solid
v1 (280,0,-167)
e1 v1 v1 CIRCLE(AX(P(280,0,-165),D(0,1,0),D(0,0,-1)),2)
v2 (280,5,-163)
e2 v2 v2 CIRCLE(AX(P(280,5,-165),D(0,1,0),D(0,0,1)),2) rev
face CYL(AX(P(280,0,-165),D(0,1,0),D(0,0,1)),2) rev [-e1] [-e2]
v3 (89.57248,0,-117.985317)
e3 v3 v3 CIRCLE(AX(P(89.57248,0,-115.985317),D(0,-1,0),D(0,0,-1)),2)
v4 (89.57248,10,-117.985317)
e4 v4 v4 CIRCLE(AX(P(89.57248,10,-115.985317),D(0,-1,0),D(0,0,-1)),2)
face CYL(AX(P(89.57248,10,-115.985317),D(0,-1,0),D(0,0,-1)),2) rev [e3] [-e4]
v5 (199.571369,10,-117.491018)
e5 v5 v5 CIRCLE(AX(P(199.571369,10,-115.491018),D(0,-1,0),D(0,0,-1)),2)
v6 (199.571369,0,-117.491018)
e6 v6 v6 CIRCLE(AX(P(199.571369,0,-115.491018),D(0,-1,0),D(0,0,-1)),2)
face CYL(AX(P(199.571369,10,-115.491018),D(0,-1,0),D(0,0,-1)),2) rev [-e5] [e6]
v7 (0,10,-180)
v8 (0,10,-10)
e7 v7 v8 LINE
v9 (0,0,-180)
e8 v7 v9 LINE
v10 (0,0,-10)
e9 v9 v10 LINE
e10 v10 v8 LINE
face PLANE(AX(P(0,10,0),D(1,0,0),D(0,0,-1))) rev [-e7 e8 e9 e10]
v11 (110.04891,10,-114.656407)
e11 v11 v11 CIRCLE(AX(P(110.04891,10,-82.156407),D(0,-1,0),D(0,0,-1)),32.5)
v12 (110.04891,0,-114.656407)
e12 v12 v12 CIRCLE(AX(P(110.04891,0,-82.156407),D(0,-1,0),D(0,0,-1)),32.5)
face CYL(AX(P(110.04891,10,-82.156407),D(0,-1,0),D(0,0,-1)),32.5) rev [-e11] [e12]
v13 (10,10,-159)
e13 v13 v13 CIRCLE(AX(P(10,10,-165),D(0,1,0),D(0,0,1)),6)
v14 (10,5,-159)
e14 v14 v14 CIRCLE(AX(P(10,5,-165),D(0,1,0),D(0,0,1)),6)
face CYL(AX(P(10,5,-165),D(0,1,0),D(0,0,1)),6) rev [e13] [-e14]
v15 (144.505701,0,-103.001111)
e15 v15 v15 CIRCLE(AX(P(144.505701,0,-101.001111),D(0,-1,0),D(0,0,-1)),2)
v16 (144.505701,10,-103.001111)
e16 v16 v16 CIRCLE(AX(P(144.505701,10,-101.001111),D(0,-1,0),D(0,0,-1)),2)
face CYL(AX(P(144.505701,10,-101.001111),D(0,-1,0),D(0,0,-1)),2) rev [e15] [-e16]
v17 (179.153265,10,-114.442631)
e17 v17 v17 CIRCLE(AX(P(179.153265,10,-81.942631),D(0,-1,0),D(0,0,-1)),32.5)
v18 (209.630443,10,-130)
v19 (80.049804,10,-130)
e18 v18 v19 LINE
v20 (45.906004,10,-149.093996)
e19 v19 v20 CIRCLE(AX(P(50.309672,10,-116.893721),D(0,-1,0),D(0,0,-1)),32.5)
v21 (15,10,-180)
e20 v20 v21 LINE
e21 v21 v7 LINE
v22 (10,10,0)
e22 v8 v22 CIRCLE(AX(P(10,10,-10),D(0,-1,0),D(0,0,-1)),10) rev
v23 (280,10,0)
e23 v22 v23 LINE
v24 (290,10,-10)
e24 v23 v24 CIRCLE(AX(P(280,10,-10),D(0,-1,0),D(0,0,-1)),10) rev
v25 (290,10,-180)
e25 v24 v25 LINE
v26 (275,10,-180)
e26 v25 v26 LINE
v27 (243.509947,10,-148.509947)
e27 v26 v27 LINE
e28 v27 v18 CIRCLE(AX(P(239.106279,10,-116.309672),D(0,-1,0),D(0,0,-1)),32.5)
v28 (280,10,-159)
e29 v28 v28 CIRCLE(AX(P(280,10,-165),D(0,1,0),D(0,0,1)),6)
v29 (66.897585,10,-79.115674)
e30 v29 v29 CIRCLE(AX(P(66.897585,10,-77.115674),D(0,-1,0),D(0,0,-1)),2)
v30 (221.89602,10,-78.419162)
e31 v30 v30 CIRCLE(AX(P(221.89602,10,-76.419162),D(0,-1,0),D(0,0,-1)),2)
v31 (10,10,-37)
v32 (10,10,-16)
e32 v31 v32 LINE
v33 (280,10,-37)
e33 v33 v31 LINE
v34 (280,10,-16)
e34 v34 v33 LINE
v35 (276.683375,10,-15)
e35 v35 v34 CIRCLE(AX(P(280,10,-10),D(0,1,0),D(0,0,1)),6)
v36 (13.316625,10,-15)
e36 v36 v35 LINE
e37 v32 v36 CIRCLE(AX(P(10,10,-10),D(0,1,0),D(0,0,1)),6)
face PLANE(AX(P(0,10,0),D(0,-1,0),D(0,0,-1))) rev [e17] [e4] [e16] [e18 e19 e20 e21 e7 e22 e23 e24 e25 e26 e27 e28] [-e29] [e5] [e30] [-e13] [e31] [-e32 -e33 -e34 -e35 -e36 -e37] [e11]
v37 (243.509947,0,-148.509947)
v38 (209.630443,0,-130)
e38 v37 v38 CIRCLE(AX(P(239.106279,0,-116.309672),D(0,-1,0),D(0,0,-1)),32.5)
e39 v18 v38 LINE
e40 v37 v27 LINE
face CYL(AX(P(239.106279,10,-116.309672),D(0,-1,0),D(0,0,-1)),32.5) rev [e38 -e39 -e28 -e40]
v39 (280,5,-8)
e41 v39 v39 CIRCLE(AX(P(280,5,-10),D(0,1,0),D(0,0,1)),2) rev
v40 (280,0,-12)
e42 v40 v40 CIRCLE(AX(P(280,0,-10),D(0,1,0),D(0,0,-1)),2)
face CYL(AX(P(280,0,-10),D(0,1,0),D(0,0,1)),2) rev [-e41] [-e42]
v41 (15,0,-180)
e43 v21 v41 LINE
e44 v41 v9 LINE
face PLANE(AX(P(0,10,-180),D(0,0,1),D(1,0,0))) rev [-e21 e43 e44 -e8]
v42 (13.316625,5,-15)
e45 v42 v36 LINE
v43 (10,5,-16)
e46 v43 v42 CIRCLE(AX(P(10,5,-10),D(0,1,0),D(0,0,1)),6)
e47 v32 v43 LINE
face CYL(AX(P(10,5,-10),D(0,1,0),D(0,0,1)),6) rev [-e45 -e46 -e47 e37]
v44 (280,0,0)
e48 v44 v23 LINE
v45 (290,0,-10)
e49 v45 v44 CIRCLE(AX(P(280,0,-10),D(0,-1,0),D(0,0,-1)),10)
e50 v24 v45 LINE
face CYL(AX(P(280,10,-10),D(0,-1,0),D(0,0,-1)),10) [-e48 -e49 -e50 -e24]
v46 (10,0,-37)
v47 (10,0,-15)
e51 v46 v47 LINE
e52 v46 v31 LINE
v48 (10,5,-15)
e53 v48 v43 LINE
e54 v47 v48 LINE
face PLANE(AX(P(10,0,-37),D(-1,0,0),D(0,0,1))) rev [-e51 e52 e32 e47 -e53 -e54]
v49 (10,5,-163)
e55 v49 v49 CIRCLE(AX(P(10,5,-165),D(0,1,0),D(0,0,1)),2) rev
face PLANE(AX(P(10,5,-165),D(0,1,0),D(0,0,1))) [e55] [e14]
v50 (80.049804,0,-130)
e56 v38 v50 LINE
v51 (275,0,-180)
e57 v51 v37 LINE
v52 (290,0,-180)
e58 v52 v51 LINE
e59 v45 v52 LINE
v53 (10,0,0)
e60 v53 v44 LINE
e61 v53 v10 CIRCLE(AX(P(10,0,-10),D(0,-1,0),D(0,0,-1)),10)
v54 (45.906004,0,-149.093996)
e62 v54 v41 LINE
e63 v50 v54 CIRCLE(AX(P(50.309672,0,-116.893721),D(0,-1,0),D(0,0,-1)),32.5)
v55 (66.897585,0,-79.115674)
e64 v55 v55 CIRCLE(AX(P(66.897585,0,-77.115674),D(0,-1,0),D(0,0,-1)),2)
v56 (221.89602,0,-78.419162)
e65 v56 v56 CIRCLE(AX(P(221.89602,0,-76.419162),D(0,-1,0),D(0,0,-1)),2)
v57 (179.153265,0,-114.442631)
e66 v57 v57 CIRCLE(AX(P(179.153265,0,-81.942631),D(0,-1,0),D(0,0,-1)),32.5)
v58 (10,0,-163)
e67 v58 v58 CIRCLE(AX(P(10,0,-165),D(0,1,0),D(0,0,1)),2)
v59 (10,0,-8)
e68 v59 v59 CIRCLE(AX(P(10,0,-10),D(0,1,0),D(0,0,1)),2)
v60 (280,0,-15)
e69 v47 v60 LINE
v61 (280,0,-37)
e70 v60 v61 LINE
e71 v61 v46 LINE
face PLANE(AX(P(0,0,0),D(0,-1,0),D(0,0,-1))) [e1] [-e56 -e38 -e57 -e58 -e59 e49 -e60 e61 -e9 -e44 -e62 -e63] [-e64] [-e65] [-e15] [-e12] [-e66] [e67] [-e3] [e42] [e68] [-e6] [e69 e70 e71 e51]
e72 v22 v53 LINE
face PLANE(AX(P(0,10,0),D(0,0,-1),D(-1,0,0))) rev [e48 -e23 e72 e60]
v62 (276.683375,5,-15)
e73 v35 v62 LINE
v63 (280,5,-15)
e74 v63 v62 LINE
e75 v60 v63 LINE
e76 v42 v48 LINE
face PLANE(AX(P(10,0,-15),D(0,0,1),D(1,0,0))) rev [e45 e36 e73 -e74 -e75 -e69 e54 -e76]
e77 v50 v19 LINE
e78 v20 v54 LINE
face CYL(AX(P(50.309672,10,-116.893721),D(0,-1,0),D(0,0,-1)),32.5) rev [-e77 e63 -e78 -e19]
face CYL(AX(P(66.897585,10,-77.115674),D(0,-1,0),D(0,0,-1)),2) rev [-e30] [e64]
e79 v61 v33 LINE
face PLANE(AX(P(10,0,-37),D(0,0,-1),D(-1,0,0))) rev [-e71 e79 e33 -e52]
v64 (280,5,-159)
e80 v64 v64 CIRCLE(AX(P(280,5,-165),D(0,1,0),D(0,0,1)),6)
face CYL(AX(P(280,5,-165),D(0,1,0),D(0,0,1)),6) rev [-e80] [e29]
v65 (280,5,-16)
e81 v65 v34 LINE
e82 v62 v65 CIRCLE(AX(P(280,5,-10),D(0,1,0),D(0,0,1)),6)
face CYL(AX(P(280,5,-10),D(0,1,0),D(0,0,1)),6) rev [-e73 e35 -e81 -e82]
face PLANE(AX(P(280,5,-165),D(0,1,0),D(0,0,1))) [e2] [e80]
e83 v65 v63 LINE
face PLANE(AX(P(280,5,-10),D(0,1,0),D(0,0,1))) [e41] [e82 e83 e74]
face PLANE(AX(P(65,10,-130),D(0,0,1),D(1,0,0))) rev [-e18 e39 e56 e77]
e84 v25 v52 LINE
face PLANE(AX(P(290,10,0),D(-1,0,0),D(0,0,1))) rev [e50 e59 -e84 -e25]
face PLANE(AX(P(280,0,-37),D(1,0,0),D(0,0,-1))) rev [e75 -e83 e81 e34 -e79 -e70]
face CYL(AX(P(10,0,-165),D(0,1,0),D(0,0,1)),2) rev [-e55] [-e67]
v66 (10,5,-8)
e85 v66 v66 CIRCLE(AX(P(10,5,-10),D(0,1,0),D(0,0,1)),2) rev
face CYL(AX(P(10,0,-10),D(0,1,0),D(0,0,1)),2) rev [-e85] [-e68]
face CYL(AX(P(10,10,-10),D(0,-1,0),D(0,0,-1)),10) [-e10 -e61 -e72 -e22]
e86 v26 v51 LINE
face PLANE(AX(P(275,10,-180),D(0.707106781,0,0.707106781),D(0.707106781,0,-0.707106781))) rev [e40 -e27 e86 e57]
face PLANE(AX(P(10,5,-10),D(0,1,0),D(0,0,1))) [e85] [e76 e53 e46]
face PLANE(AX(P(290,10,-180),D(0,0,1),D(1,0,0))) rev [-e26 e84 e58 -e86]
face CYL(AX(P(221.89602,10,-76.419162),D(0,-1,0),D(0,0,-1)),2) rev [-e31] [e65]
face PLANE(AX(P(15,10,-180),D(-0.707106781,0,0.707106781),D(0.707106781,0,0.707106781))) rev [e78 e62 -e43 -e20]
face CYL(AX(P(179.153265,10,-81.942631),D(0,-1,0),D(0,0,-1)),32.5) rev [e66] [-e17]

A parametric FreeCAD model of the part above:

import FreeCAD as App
import Part
import Sketcher

V = App.Vector
Q = App.Units.Quantity


def edges_at(feature, points):
    """Names of the edges that pass closest to the given points."""
    edges = feature.Shape.Edges
    near = lambda p: min(range(len(edges)), key=lambda i: edges[i].distToShape(Part.Vertex(*p))[0])
    return sorted({f"Edge{near(p) + 1}" for p in points})

doc = App.newDocument("Part")
body = doc.addObject("PartDesign::Body", "Body")

# Sketch on XZ plane
sketch1 = body.newObject("Sketcher::SketchObject", "Sketch")
sketch1.AttachmentSupport = (doc.getObject("XZ_Plane"), [""])
sketch1.MapMode = "FlatFace"
sketch1.addGeometry([
    Part.LineSegment(V(0, 0, 0), V(290, 0, 0)),  # 0
    Part.LineSegment(V(290, 0, 0), V(290, -180, 0)),  # 1
    Part.LineSegment(V(290, -180, 0), V(275, -180, 0)),  # 2
    Part.LineSegment(V(275, -180, 0), V(225, -130, 0)),  # 3
    Part.LineSegment(V(225, -130, 0), V(65, -130, 0)),  # 4
    Part.LineSegment(V(65, -130, 0), V(15, -180, 0)),  # 5
    Part.LineSegment(V(15, -180, 0), V(0, -180, 0)),  # 6
    Part.LineSegment(V(0, -180, 0), V(0, 0, 0)),  # 7
], False)
sketch1.addConstraint([
    Sketcher.Constraint("Coincident", 0, 2, 1, 1),
    Sketcher.Constraint("Coincident", 1, 2, 2, 1),
    Sketcher.Constraint("Coincident", 2, 2, 3, 1),
    Sketcher.Constraint("Coincident", 3, 2, 4, 1),
    Sketcher.Constraint("Coincident", 4, 2, 5, 1),
    Sketcher.Constraint("Coincident", 5, 2, 6, 1),
    Sketcher.Constraint("Coincident", 6, 2, 7, 1),
    Sketcher.Constraint("Coincident", 7, 2, 0, 1),
    Sketcher.Constraint("Horizontal", 0),
    Sketcher.Constraint("Vertical", 1),
    Sketcher.Constraint("Horizontal", 2),
    Sketcher.Constraint("Horizontal", 4),
    Sketcher.Constraint("Horizontal", 6),
    Sketcher.Constraint("Vertical", 7),
    Sketcher.Constraint("Coincident", 7, 2, -1, 1),
    Sketcher.Constraint("Perpendicular", 3, 5),
    Sketcher.Constraint("Horizontal", 2, 2, 5, 2),
    Sketcher.Constraint("Equal", 2, 6),
    Sketcher.Constraint("Equal", 3, 5),
    Sketcher.Constraint("DistanceX", 0, 1, 0, 2, Q("290 mm")),
    Sketcher.Constraint("DistanceX", 2, 2, 2, 1, Q("15 mm")),
    Sketcher.Constraint("DistanceX", 4, 2, 4, 1, Q("160 mm")),
    Sketcher.Constraint("DistanceY", 1, 2, 1, 1, Q("180 mm")),
])
pad1 = body.newObject("PartDesign::Pad", "Pad")
pad1.Profile = sketch1
pad1.Length = 10
pad1.Reversed = True

# Sketch on XZ plane
sketch2 = body.newObject("Sketcher::SketchObject", "Sketch001")
sketch2.AttachmentSupport = (doc.getObject("XZ_Plane"), [""])
sketch2.MapMode = "FlatFace"
sketch2.AttachmentOffset = App.Placement(V(0, 0, -10), App.Rotation())
sketch2.addGeometry([
    Part.Circle(V(10, -10, 0), V(0, 0, 1), 2),
    Part.Circle(V(280, -10, 0), V(0, 0, 1), 2),
], False)
sketch2.addConstraint([
    Sketcher.Constraint("Equal", 0, 1),
    Sketcher.Constraint("Horizontal", 0, 3, 1, 3),
    Sketcher.Constraint("Diameter", 0, Q("4 mm")),
    Sketcher.Constraint("DistanceX", -1, 1, 0, 3, Q("10 mm")),
    Sketcher.Constraint("DistanceY", 0, 3, -1, 1, Q("10 mm")),
    Sketcher.Constraint("DistanceX", -1, 1, 1, 3, Q("280 mm")),
])
pocket1 = body.newObject("PartDesign::Pocket", "Pocket")
pocket1.Profile = sketch2
pocket1.Length = 10
pocket1.Reversed = True
doc.recompute()

fillet = body.newObject("PartDesign::Fillet", "Fillet")
fillet.Base = (pocket1, edges_at(pocket1, [(290, 5, 0), (0, 5, 0)]))
fillet.Radius = 10

# Sketch on XZ plane
sketch3 = body.newObject("Sketcher::SketchObject", "Sketch002")
sketch3.AttachmentSupport = (doc.getObject("XZ_Plane"), [""])
sketch3.MapMode = "FlatFace"
sketch3.addGeometry([
    Part.Circle(V(239, -116, 0), V(0, 0, 1), 32),
    Part.Circle(V(179, -82, 0), V(0, 0, 1), 32),
    Part.Circle(V(110, -82, 0), V(0, 0, 1), 32),
    Part.Circle(V(50, -117, 0), V(0, 0, 1), 32),
], False)
sketch3.addConstraint([
    Sketcher.Constraint("Equal", 0, 1),
    Sketcher.Constraint("Equal", 1, 2),
    Sketcher.Constraint("Equal", 2, 3),
    Sketcher.Constraint("Diameter", 0, Q("65 mm")),
    Sketcher.Constraint("DistanceX", -1, 1, 0, 3, Q("239.106279 mm")),
    Sketcher.Constraint("DistanceY", 1, 3, -1, 1, Q("81.942631 mm")),
    Sketcher.Constraint("DistanceX", -1, 1, 2, 3, Q("110.04891 mm")),
    Sketcher.Constraint("DistanceY", 3, 3, -1, 1, Q("116.893721 mm")),
    Sketcher.Constraint("DistanceY", 0, 3, 1, 3, Q("34.367041 mm")),
    Sketcher.Constraint("DistanceX", 3, 3, 2, 3, Q("59.739238 mm")),
    Sketcher.Constraint("DistanceX", -1, 1, 1, 3, Q("179.153265 mm")),
    Sketcher.Constraint("DistanceY", 2, 3, -1, 1, Q("82.156407 mm")),
])
pocket2 = body.newObject("PartDesign::Pocket", "Pocket001")
pocket2.Profile = sketch3
pocket2.Length = 10

# Sketch on XZ plane
sketch4 = body.newObject("Sketcher::SketchObject", "Sketch003")
sketch4.AttachmentSupport = (doc.getObject("XZ_Plane"), [""])
sketch4.MapMode = "FlatFace"
sketch4.addGeometry([
    Part.Circle(V(144.5, -101, 0), V(0, 0, 1), 2),  # 0
    Part.Circle(V(199.6, -115.5, 0), V(0, 0, 1), 2),  # 1
    Part.Circle(V(221.9, -76.4, 0), V(0, 0, 1), 2),  # 2
    Part.Circle(V(66.9, -77.1, 0), V(0, 0, 1), 2),  # 3
    Part.Circle(V(89.6, -116, 0), V(0, 0, 1), 2),  # 4
], False)
sketch4.addConstraint([
    Sketcher.Constraint("Equal", 0, 1),
    Sketcher.Constraint("Equal", 1, 2),
    Sketcher.Constraint("Equal", 2, 3),
    Sketcher.Constraint("Equal", 3, 4),
    Sketcher.Constraint("Diameter", 0, Q("4 mm")),
    Sketcher.Constraint("DistanceX", -1, 1, 0, 3, Q("144.505701 mm")),
    Sketcher.Constraint("DistanceY", 4, 3, 1, 3, Q("0.494299 mm")),
    Sketcher.Constraint("DistanceY", 0, 3, -1, 1, Q("101.001111 mm")),
    Sketcher.Constraint("DistanceX", -1, 1, 1, 3, Q("199.571369 mm")),
    Sketcher.Constraint("DistanceX", -1, 1, 2, 3, Q("221.89602 mm")),
    Sketcher.Constraint("DistanceY", 2, 3, -1, 1, Q("76.419162 mm")),
    Sketcher.Constraint("DistanceX", -1, 1, 4, 3, Q("89.57248 mm")),
    Sketcher.Constraint("DistanceY", 1, 3, -1, 1, Q("115.491018 mm")),
    Sketcher.Constraint("DistanceX", -1, 1, 3, 3, Q("66.897585 mm")),
    Sketcher.Constraint("DistanceY", 3, 3, -1, 1, Q("77.115674 mm")),
])
pocket3 = body.newObject("PartDesign::Pocket", "Pocket002")
pocket3.Profile = sketch4
pocket3.Length = 10

# Sketch on XZ plane
sketch5 = body.newObject("Sketcher::SketchObject", "Sketch004")
sketch5.AttachmentSupport = (doc.getObject("XZ_Plane"), [""])
sketch5.MapMode = "FlatFace"
sketch5.AttachmentOffset = App.Placement(V(0, 0, -10), App.Rotation())
sketch5.addGeometry([
    Part.LineSegment(V(10, -37, 0), V(10, -15, 0)),
    Part.LineSegment(V(10, -15, 0), V(280, -15, 0)),
    Part.LineSegment(V(280, -15, 0), V(280, -37, 0)),
    Part.LineSegment(V(280, -37, 0), V(10, -37, 0)),
], False)
sketch5.addConstraint([
    Sketcher.Constraint("Coincident", 0, 2, 1, 1),
    Sketcher.Constraint("Coincident", 1, 2, 2, 1),
    Sketcher.Constraint("Coincident", 2, 2, 3, 1),
    Sketcher.Constraint("Coincident", 3, 2, 0, 1),
    Sketcher.Constraint("Vertical", 0),
    Sketcher.Constraint("Horizontal", 1),
    Sketcher.Constraint("Vertical", 2),
    Sketcher.Constraint("Horizontal", 3),
    Sketcher.Constraint("DistanceX", 1, 1, 1, 2, Q("270 mm")),
    Sketcher.Constraint("DistanceY", 0, 1, 0, 2, Q("22 mm")),
    Sketcher.Constraint("DistanceX", -1, 1, 0, 2, Q("10 mm")),
    Sketcher.Constraint("DistanceY", 0, 2, -1, 1, Q("15 mm")),
])
pocket4 = body.newObject("PartDesign::Pocket", "Pocket003")
pocket4.Profile = sketch5
pocket4.Length = 10
pocket4.Reversed = True

# Sketch on XZ plane
sketch6 = body.newObject("Sketcher::SketchObject", "Sketch005")
sketch6.AttachmentSupport = (doc.getObject("XZ_Plane"), [""])
sketch6.MapMode = "FlatFace"
sketch6.AttachmentOffset = App.Placement(V(0, 0, -10), App.Rotation())
sketch6.addGeometry([
    Part.Circle(V(10, -165, 0), V(0, 0, 1), 2),
    Part.Circle(V(280, -165, 0), V(0, 0, 1), 2),
], False)
sketch6.addConstraint([
    Sketcher.Constraint("Equal", 0, 1),
    Sketcher.Constraint("Horizontal", 0, 3, 1, 3),
    Sketcher.Constraint("Diameter", 0, Q("4 mm")),
    Sketcher.Constraint("DistanceX", -1, 1, 0, 3, Q("10 mm")),
    Sketcher.Constraint("DistanceY", 0, 3, -1, 1, Q("165 mm")),
    Sketcher.Constraint("DistanceX", -1, 1, 1, 3, Q("280 mm")),
])
pocket5 = body.newObject("PartDesign::Pocket", "Pocket004")
pocket5.Profile = sketch6
pocket5.Length = 10
pocket5.Reversed = True

# Sketch on XZ plane
sketch7 = body.newObject("Sketcher::SketchObject", "Sketch006")
sketch7.AttachmentSupport = (doc.getObject("XZ_Plane"), [""])
sketch7.MapMode = "FlatFace"
sketch7.AttachmentOffset = App.Placement(V(0, 0, -10), App.Rotation())
sketch7.addGeometry([
    Part.Circle(V(10, -165, 0), V(0, 0, 1), 6),
    Part.Circle(V(280, -165, 0), V(0, 0, 1), 6),
    Part.Circle(V(280, -10, 0), V(0, 0, 1), 6),
    Part.Circle(V(10, -10, 0), V(0, 0, 1), 6),
], False)
sketch7.addConstraint([
    Sketcher.Constraint("Equal", 0, 1),
    Sketcher.Constraint("Equal", 1, 2),
    Sketcher.Constraint("Equal", 2, 3),
    Sketcher.Constraint("Horizontal", 0, 3, 1, 3),
    Sketcher.Constraint("Horizontal", 2, 3, 3, 3),
    Sketcher.Constraint("Vertical", 1, 3, 2, 3),
    Sketcher.Constraint("Vertical", 0, 3, 3, 3),
    Sketcher.Constraint("Diameter", 0, Q("12 mm")),
    Sketcher.Constraint("DistanceX", -1, 1, 0, 3, Q("10 mm")),
    Sketcher.Constraint("DistanceY", 0, 3, -1, 1, Q("165 mm")),
    Sketcher.Constraint("DistanceX", -1, 1, 1, 3, Q("280 mm")),
    Sketcher.Constraint("DistanceY", 2, 3, -1, 1, Q("10 mm")),
])
pocket6 = body.newObject("PartDesign::Pocket", "Pocket005")
pocket6.Profile = sketch7
pocket6.Length = 5
pocket6.Reversed = True

doc.recompute()
